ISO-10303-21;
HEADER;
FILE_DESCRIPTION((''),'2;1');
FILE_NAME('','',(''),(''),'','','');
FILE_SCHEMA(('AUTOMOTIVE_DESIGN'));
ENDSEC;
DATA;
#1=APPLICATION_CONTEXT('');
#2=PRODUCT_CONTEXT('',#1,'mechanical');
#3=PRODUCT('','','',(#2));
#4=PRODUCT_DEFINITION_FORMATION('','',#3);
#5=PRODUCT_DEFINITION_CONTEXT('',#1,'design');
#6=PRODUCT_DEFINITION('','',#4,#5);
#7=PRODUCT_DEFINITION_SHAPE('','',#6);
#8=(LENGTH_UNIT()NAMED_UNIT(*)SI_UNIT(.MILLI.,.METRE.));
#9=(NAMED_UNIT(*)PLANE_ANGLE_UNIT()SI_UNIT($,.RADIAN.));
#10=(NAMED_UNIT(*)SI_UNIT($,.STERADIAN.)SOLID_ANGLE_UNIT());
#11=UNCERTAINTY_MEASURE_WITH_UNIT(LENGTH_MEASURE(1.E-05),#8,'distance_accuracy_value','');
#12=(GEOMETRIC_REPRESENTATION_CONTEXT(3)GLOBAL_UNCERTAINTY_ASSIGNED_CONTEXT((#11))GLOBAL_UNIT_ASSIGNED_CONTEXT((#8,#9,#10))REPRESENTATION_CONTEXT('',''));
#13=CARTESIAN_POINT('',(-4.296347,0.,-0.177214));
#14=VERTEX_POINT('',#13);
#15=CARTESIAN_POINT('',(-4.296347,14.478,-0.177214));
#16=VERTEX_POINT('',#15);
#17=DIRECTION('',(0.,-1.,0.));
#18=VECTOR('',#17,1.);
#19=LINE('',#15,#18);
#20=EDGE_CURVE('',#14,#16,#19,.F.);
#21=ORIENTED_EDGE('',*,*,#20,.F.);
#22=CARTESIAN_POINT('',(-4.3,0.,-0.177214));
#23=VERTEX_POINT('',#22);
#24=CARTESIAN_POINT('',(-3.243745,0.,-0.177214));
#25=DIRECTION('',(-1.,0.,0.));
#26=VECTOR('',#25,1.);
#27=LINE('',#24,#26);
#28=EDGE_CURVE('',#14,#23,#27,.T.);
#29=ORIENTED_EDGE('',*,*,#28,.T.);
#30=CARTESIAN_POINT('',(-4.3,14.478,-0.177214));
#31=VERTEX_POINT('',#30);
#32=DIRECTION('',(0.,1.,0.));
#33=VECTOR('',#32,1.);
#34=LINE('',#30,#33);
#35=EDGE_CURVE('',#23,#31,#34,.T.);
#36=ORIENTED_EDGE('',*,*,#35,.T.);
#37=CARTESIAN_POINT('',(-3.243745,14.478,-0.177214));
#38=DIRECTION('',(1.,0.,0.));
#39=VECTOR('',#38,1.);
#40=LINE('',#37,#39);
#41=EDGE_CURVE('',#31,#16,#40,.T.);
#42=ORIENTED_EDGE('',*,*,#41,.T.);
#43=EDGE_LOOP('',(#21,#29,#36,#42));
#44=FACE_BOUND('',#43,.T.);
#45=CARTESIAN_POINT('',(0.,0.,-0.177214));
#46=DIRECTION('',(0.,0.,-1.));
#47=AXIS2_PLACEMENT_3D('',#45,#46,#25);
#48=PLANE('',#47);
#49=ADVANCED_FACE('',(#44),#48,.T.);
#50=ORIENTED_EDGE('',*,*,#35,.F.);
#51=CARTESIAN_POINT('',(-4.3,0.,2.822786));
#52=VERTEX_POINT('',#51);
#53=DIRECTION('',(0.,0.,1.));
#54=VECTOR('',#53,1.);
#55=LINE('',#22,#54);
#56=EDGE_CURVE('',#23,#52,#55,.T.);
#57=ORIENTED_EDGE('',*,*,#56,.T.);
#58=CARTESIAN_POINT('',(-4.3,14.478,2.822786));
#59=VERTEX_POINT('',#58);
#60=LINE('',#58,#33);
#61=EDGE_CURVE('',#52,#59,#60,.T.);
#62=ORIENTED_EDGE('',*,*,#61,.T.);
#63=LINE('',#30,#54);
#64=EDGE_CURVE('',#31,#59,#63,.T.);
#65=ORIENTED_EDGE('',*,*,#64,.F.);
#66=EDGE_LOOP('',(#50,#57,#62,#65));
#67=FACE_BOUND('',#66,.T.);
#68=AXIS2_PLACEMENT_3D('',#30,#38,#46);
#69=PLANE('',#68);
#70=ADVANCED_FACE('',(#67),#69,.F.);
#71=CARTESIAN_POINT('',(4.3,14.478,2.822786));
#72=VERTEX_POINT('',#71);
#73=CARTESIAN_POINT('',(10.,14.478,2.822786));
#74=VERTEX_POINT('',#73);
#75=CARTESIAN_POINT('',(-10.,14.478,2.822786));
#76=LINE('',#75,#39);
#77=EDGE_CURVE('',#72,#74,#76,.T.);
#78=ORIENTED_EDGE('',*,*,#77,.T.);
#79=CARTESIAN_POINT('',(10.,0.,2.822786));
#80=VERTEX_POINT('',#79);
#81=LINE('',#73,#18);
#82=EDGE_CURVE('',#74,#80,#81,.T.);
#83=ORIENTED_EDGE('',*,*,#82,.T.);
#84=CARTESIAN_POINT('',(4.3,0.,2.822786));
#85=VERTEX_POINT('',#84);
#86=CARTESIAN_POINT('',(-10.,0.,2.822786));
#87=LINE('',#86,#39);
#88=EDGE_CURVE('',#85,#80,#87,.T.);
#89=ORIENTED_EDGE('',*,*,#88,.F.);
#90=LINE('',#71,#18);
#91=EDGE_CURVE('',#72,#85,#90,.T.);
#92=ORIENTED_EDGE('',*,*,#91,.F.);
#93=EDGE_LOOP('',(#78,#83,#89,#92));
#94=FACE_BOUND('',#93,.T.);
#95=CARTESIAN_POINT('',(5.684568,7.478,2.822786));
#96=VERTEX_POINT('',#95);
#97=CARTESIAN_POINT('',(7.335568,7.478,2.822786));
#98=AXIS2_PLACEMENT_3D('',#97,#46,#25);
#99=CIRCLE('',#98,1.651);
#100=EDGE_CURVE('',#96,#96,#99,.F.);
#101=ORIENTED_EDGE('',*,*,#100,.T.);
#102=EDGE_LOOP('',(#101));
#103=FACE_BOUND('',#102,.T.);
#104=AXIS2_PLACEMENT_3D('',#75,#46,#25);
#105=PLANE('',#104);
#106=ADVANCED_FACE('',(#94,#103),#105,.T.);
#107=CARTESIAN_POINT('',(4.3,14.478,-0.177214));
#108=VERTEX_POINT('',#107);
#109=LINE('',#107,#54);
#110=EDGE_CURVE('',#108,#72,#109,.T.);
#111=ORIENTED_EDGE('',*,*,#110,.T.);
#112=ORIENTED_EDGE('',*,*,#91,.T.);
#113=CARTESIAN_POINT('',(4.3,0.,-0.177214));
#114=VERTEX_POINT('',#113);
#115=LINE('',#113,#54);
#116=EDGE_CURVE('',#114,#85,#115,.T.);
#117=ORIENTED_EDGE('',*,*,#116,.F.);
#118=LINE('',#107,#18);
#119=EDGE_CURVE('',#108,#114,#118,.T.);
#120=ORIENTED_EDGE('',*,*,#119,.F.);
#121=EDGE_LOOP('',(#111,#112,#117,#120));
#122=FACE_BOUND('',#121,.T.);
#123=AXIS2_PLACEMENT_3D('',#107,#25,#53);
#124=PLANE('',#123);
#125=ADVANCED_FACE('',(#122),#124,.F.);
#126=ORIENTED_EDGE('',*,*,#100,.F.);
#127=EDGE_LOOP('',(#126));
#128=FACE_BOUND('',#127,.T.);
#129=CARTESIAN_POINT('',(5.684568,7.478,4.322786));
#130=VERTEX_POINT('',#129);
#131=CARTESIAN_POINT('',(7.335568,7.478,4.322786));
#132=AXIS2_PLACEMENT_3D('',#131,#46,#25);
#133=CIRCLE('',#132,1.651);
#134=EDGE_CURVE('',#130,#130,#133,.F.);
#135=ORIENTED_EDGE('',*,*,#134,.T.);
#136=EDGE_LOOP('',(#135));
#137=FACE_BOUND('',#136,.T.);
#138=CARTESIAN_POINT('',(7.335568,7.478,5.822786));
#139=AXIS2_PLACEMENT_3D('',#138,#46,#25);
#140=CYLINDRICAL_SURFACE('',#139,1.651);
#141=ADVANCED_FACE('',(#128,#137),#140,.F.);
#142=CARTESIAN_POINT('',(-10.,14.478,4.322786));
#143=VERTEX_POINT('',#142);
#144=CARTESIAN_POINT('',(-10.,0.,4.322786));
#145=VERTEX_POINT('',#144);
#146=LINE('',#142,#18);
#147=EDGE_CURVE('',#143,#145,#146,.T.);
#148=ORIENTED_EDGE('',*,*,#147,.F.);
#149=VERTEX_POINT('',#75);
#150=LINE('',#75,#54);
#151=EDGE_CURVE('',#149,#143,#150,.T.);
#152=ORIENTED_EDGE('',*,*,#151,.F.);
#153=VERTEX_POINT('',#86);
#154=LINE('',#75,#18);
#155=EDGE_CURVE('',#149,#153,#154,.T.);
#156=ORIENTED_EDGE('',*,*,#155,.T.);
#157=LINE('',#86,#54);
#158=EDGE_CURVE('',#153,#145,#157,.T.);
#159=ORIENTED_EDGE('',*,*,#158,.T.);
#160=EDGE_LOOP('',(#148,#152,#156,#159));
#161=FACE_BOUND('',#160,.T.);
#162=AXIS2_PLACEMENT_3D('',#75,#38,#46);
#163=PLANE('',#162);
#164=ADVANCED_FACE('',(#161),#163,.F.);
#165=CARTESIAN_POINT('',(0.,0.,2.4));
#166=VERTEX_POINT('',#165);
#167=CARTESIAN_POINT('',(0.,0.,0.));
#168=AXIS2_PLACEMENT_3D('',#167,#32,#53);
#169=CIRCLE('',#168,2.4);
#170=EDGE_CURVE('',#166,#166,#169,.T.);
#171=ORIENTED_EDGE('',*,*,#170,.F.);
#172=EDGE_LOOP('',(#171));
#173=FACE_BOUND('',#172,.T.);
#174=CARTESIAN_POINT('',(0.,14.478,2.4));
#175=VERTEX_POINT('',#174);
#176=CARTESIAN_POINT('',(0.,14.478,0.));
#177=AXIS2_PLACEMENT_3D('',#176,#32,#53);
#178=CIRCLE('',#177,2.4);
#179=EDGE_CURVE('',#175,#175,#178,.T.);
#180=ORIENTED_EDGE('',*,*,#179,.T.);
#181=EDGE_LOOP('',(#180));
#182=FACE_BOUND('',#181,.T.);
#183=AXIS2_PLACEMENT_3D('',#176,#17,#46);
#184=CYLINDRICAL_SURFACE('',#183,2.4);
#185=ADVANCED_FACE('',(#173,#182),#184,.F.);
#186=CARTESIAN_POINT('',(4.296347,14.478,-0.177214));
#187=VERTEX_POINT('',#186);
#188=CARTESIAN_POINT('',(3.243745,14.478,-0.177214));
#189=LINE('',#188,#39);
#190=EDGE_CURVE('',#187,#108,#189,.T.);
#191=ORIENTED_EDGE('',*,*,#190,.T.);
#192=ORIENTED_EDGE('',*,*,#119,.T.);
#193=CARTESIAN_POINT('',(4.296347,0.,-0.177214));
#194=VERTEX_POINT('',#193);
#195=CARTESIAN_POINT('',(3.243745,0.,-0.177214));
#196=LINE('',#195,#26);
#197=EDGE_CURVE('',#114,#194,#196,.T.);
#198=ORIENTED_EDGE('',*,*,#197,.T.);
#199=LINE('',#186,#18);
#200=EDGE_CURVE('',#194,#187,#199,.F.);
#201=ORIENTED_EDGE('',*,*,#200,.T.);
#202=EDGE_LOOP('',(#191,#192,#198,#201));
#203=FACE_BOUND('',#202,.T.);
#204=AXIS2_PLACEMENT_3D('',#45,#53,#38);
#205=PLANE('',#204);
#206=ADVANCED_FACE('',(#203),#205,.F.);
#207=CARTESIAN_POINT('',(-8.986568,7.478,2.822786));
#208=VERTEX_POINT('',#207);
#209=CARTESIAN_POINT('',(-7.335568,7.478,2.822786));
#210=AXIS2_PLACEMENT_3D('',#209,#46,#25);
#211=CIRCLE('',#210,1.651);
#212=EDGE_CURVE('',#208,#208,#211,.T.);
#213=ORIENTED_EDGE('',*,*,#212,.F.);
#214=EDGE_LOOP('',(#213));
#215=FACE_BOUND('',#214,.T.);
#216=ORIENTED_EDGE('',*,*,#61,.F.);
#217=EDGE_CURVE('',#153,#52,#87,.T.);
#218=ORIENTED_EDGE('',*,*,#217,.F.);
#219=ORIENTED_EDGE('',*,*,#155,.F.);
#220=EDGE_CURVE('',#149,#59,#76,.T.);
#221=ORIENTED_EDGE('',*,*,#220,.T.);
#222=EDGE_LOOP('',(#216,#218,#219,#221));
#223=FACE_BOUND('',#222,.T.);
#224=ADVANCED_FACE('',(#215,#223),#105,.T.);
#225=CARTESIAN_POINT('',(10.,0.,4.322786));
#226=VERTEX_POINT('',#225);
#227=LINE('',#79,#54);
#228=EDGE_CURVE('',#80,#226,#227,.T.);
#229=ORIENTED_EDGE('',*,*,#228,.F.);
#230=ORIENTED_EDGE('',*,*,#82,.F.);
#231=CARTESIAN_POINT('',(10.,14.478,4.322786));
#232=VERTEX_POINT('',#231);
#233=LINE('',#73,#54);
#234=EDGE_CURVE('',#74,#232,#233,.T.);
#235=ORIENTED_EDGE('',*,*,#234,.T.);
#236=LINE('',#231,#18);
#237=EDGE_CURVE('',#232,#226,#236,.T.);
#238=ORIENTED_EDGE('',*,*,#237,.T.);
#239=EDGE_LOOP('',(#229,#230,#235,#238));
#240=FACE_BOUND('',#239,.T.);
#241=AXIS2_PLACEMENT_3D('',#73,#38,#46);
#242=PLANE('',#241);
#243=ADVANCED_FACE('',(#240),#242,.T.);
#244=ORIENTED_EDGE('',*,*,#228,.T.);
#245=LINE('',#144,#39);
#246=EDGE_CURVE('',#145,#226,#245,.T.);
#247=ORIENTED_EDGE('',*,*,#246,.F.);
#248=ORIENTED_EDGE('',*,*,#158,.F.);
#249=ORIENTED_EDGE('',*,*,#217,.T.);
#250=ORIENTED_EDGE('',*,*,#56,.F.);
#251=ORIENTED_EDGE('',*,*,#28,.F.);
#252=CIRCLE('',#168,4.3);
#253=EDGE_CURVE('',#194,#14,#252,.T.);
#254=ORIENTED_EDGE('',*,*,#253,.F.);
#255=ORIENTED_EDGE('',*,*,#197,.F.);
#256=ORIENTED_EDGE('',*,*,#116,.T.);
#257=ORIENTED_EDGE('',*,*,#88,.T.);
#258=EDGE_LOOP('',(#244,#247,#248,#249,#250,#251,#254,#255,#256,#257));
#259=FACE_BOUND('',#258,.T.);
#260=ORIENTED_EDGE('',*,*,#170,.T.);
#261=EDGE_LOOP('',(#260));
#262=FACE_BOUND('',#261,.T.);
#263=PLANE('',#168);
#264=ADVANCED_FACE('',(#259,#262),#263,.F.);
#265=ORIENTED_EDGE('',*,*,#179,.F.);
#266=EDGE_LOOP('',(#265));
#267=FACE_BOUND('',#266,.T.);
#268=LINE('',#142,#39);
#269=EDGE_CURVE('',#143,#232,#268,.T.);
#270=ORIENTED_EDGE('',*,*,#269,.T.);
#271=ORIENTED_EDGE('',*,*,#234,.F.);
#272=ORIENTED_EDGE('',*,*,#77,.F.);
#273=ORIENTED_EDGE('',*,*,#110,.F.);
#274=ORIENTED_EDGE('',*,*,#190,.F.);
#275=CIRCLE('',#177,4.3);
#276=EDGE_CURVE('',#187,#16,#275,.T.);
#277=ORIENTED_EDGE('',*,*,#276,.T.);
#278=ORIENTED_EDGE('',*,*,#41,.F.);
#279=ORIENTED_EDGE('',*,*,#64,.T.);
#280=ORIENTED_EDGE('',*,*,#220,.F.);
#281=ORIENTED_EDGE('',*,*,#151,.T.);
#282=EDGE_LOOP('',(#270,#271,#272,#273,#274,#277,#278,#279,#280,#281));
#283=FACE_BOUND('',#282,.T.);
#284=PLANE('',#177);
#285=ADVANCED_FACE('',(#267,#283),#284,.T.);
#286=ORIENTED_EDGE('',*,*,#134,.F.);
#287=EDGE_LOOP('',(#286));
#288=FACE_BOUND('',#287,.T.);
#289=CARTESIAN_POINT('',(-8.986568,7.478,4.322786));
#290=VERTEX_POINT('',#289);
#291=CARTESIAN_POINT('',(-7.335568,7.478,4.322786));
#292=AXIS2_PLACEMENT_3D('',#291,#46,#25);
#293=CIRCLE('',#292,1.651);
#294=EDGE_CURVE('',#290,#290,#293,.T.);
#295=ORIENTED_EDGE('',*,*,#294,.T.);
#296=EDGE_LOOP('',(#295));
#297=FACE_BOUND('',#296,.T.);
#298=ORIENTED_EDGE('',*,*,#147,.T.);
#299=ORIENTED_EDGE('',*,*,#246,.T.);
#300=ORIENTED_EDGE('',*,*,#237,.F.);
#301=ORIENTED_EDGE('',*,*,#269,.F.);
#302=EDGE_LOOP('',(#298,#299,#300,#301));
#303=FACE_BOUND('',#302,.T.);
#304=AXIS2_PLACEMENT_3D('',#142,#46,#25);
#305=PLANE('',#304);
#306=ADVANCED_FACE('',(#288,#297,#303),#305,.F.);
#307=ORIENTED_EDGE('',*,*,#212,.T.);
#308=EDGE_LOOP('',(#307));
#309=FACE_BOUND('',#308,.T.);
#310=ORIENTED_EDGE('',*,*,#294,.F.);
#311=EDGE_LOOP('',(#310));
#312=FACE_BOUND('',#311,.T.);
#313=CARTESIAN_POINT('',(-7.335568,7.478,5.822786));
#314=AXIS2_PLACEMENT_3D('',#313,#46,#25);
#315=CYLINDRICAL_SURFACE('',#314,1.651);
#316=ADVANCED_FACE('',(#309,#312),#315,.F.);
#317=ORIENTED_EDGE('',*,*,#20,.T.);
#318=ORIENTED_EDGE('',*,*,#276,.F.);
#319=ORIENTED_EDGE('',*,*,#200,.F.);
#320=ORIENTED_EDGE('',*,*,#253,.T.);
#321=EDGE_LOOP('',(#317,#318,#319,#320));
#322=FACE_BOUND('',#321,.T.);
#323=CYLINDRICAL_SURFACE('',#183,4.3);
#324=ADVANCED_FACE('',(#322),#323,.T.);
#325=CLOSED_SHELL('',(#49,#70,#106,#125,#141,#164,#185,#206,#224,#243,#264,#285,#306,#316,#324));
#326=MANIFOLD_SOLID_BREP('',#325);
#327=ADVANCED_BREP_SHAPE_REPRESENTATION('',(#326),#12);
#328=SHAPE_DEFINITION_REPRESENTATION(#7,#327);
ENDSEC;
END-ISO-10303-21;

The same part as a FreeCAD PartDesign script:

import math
import FreeCAD as App
import Part
import Sketcher

doc = App.newDocument("Part")
params = doc.addObject("Spreadsheet::Sheet", "Params")
for row, (alias, value) in enumerate([
    ("sketch1_diameter", "4.8 mm"),
    ("sketch1_radius", "4.3 mm"),
    ("sketch1_width", "20 mm"),
    ("sketch1_height", "1.5 mm"),
    ("pad1_length", "14.478 mm"),
    ("pad2_length", "3 mm"),
    ("pad3_length", "3 mm"),
    ("pocket1_length", "3 mm"),
], start=1):
    params.set(f"A{row}", alias)
    params.set(f"B{row}", "=" + value)
    params.setAlias(f"B{row}", alias)

body = doc.addObject("PartDesign::Body", "Body")

sketch1 = body.newObject("Sketcher::SketchObject", "Sketch")
sketch1.AttachmentSupport = (doc.getObject("XZ_Plane"), [""])
sketch1.MapMode = "FlatFace"
sketch1.addGeometry([
    Part.ArcOfCircle(Part.Circle(App.Vector(0, 0, 0), App.Vector(0, 0, 1), 4.3), math.radians(138.969416), math.radians(401.030584)),
    Part.LineSegment(App.Vector(-3.243745, 2.822786, 0), App.Vector(-10, 2.822786, 0)),
    Part.LineSegment(App.Vector(-10, 2.822786, 0), App.Vector(-10, 4.322786, 0)),
    Part.LineSegment(App.Vector(-10, 4.322786, 0), App.Vector(10, 4.322786, 0)),
    Part.LineSegment(App.Vector(10, 4.322786, 0), App.Vector(10, 2.822786, 0)),
    Part.LineSegment(App.Vector(10, 2.822786, 0), App.Vector(3.243745, 2.822786, 0)),
    Part.Circle(App.Vector(0, 0, 0), App.Vector(0, 0, 1), 2.4),
], False)
sketch1.addConstraint([
    Sketcher.Constraint("Coincident", 0, 1, 1, 1),
    Sketcher.Constraint("Coincident", 1, 2, 2, 1),
    Sketcher.Constraint("Coincident", 2, 2, 3, 1),
    Sketcher.Constraint("Coincident", 3, 2, 4, 1),
    Sketcher.Constraint("Coincident", 4, 2, 5, 1),
    Sketcher.Constraint("Coincident", 5, 2, 0, 2),
    Sketcher.Constraint("Horizontal", 1),
    Sketcher.Constraint("Vertical", 2),
    Sketcher.Constraint("Horizontal", 3),
    Sketcher.Constraint("Vertical", 4),
    Sketcher.Constraint("Horizontal", 5),
    Sketcher.Constraint("Coincident", 0, 3, -1, 1),
    Sketcher.Constraint("Coincident", 6, 3, -1, 1),
    Sketcher.Constraint("Symmetric", 1, 2, 4, 2, -2),
    Sketcher.Constraint("Diameter", 6, 4.8),
    Sketcher.Constraint("Radius", 0, 4.3),
    Sketcher.Constraint("DistanceX", 3, 1, 3, 2, 20.0),
    Sketcher.Constraint("DistanceY", 2, 1, 2, 2, 1.5),
    Sketcher.Constraint("DistanceX", 1, 2, 1, 1, 6.756255),
])
sketch1.setExpression("Constraints[14]", "Params.sketch1_diameter")
sketch1.setExpression("Constraints[15]", "Params.sketch1_radius")
sketch1.setExpression("Constraints[16]", "Params.sketch1_width")
sketch1.setExpression("Constraints[17]", "Params.sketch1_height")
pad1 = body.newObject("PartDesign::Pad", "Pad")
pad1.Profile = sketch1
pad1.setExpression("Length", "Params.pad1_length")
pad1.Reversed = True

sketch2 = body.newObject("Sketcher::SketchObject", "Sketch001")
sketch2.AttachmentSupport = (doc.getObject("XY_Plane"), [""])
sketch2.MapMode = "FlatFace"
sketch2.AttachmentOffset = App.Placement(App.Vector(0, 0, 2.822786), App.Rotation())
sketch2.addGeometry([
    Part.LineSegment(App.Vector(4.3, 14.478, 0), App.Vector(4.3, 0, 0)),
    Part.LineSegment(App.Vector(4.3, 0, 0), App.Vector(3.243745, 0, 0)),
    Part.LineSegment(App.Vector(3.243745, 0, 0), App.Vector(3.243745, 14.478, 0)),
    Part.LineSegment(App.Vector(3.243745, 14.478, 0), App.Vector(4.3, 14.478, 0)),
], False)
sketch2.addConstraint([
    Sketcher.Constraint("Coincident", 0, 2, 1, 1),
    Sketcher.Constraint("Coincident", 1, 2, 2, 1),
    Sketcher.Constraint("Coincident", 2, 2, 3, 1),
    Sketcher.Constraint("Coincident", 3, 2, 0, 1),
    Sketcher.Constraint("Vertical", 0),
    Sketcher.Constraint("Horizontal", 1),
    Sketcher.Constraint("Vertical", 2),
    Sketcher.Constraint("Horizontal", 3),
    Sketcher.Constraint("PointOnObject", 0, 2, -1),
    Sketcher.Constraint("DistanceX", -1, 1, 0, 2, 4.3),
    Sketcher.Constraint("DistanceY", 0, 2, 0, 1, 14.478),
    Sketcher.Constraint("DistanceX", 1, 2, 1, 1, 1.056255),
])
pad2 = body.newObject("PartDesign::Pad", "Pad001")
pad2.Profile = sketch2
pad2.setExpression("Length", "Params.pad2_length")
pad2.Reversed = True

sketch3 = body.newObject("Sketcher::SketchObject", "Sketch002")
sketch3.AttachmentSupport = (doc.getObject("XY_Plane"), [""])
sketch3.MapMode = "FlatFace"
sketch3.AttachmentOffset = App.Placement(App.Vector(0, 0, 2.822786), App.Rotation())
sketch3.addGeometry([
    Part.LineSegment(App.Vector(-3.243745, 14.478, 0), App.Vector(-3.243745, 0, 0)),
    Part.LineSegment(App.Vector(-3.243745, 0, 0), App.Vector(-4.3, 0, 0)),
    Part.LineSegment(App.Vector(-4.3, 0, 0), App.Vector(-4.3, 14.478, 0)),
    Part.LineSegment(App.Vector(-4.3, 14.478, 0), App.Vector(-3.243745, 14.478, 0)),
], False)
sketch3.addConstraint([
    Sketcher.Constraint("Coincident", 0, 2, 1, 1),
    Sketcher.Constraint("Coincident", 1, 2, 2, 1),
    Sketcher.Constraint("Coincident", 2, 2, 3, 1),
    Sketcher.Constraint("Coincident", 3, 2, 0, 1),
    Sketcher.Constraint("Vertical", 0),
    Sketcher.Constraint("Horizontal", 1),
    Sketcher.Constraint("Vertical", 2),
    Sketcher.Constraint("Horizontal", 3),
    Sketcher.Constraint("PointOnObject", 0, 2, -1),
    Sketcher.Constraint("DistanceX", 1, 2, -1, 1, 4.3),
    Sketcher.Constraint("DistanceY", 0, 2, 0, 1, 14.478),
    Sketcher.Constraint("DistanceX", 1, 2, 1, 1, 1.056255),
])
pad3 = body.newObject("PartDesign::Pad", "Pad002")
pad3.Profile = sketch3
pad3.setExpression("Length", "Params.pad3_length")
pad3.Reversed = True

sketch4 = body.newObject("Sketcher::SketchObject", "Sketch003")
sketch4.AttachmentSupport = (doc.getObject("XY_Plane"), [""])
sketch4.MapMode = "FlatFace"
sketch4.AttachmentOffset = App.Placement(App.Vector(0, 0, 2.822786), App.Rotation())
sketch4.addGeometry([
    Part.Circle(App.Vector(7.335568, 7.478, 0), App.Vector(0, 0, 1), 1.651),
    Part.Circle(App.Vector(-7.335568, 7.478, 0), App.Vector(0, 0, 1), 1.651),
], False)
sketch4.addConstraint([
    Sketcher.Constraint("Equal", 0, 1),
    Sketcher.Constraint("Symmetric", 0, 3, 1, 3, -2),
    Sketcher.Constraint("Diameter", 0, 3.302),
    Sketcher.Constraint("DistanceY", -1, 1, 0, 3, 7.478),
    Sketcher.Constraint("DistanceX", -1, 1, 0, 3, 7.335568),
])
pocket1 = body.newObject("PartDesign::Pocket", "Pocket")
pocket1.Profile = sketch4
pocket1.setExpression("Length", "Params.pocket1_length")
pocket1.Reversed = True

doc.recompute()
